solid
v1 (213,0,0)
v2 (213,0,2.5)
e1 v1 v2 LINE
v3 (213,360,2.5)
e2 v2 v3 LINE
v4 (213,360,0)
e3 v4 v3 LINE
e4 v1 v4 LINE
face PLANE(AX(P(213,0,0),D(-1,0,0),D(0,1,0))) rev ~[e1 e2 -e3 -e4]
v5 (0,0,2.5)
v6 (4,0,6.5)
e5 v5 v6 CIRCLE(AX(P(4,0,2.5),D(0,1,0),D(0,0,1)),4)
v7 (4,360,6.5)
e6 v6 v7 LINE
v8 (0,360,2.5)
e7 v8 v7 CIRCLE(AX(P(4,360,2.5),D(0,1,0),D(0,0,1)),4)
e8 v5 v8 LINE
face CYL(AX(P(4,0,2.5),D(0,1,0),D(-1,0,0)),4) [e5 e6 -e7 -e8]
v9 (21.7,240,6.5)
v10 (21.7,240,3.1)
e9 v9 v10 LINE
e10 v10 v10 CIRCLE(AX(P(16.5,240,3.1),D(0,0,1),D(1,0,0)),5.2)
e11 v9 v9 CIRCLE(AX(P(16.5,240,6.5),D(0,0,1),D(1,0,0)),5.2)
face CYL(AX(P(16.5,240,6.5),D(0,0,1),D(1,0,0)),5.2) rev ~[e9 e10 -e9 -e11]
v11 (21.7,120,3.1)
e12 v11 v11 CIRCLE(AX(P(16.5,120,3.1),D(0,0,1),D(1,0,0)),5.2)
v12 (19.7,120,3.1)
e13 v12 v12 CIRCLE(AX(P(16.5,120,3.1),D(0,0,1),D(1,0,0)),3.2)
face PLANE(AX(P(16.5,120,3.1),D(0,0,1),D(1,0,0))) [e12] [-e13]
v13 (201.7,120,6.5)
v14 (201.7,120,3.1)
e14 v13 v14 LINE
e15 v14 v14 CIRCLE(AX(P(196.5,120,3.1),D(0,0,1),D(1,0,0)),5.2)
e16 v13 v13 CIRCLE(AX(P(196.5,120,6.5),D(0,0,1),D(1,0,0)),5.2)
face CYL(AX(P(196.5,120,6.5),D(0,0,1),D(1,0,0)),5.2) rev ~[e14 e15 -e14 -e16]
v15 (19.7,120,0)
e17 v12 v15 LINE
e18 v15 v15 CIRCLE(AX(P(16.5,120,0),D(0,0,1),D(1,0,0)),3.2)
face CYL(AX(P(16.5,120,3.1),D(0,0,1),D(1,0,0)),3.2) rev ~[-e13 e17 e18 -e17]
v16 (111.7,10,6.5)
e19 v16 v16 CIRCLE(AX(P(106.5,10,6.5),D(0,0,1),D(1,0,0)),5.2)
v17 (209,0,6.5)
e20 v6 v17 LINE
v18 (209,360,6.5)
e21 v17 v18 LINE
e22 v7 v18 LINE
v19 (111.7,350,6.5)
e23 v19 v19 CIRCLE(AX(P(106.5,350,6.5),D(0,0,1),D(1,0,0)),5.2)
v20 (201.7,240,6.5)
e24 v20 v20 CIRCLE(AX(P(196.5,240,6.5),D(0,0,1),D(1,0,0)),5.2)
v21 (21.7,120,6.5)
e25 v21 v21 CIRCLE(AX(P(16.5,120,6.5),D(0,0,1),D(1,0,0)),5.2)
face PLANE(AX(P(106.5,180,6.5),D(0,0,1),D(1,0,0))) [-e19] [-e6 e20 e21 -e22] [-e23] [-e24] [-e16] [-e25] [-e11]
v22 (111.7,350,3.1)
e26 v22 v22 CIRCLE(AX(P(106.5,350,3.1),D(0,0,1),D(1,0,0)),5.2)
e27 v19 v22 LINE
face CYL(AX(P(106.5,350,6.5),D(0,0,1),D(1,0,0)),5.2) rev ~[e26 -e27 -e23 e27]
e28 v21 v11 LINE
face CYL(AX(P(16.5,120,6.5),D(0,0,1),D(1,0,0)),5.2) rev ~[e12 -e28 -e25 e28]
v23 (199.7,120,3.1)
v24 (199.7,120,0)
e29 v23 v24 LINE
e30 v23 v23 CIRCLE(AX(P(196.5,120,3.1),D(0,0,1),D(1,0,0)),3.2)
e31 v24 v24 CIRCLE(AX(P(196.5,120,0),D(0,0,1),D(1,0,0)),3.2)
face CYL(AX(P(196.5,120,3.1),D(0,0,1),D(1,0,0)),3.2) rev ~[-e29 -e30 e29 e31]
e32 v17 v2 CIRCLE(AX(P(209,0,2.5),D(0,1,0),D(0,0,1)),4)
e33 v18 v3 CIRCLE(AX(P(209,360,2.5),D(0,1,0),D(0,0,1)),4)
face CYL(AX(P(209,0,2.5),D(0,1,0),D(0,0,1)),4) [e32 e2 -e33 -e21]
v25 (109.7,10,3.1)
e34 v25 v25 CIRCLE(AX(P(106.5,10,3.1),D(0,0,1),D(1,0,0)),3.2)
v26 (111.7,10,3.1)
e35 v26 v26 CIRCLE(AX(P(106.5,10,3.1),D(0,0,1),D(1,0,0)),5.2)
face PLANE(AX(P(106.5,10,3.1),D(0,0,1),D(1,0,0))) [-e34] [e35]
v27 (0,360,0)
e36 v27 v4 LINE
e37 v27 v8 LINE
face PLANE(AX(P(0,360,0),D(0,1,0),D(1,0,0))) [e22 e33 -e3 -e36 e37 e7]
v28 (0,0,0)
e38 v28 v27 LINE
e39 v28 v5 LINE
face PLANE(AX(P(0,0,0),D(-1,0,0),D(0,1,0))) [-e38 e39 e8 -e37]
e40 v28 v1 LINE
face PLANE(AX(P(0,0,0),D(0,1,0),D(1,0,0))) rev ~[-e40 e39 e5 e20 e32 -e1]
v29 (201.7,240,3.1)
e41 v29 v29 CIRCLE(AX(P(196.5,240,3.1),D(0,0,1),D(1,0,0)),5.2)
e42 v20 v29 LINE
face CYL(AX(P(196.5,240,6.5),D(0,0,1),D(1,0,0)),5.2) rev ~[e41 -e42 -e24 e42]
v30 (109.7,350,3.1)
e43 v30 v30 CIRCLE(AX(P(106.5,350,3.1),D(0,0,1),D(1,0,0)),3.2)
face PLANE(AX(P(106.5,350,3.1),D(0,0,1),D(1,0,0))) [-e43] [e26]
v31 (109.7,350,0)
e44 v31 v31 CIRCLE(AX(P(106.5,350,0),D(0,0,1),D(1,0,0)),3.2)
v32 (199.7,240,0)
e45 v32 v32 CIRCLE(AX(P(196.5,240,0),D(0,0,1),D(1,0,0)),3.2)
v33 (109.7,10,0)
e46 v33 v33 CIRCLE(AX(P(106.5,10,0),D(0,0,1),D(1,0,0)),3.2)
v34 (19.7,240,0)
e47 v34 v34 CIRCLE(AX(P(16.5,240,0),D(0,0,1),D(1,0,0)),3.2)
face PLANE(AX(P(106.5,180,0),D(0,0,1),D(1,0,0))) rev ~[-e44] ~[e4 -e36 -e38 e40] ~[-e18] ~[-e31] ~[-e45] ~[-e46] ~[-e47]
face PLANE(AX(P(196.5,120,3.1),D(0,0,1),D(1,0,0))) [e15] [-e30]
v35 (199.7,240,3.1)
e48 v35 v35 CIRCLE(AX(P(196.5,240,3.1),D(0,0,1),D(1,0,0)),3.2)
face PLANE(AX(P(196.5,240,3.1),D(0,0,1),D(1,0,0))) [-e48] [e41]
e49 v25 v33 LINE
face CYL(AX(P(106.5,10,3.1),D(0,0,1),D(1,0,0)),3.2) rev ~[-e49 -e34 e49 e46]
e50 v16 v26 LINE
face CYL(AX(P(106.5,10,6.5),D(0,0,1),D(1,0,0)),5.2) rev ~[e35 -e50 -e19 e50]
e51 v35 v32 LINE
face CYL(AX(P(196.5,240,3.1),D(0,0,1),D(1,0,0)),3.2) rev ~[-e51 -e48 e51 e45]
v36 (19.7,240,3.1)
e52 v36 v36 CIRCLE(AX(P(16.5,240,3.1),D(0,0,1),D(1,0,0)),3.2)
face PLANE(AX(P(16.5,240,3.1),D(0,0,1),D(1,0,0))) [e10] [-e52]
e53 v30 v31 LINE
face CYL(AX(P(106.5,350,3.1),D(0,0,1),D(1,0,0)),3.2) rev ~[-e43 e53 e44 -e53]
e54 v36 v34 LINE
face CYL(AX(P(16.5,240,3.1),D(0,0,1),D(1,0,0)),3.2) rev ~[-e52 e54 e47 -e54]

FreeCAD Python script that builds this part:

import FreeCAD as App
import Part
import Sketcher
Q = App.Units.Quantity


def edges_at(feature, points):
    """Names of the edges that pass closest to the given points."""
    edges = feature.Shape.Edges
    near = lambda p: min(range(len(edges)), key=lambda i: edges[i].distToShape(Part.Vertex(*p))[0])
    return sorted({f"Edge{near(p) + 1}" for p in points})


def add_polygon(sketch, points):
    """Adds a closed chain of lines whose ends are joined by coincident constraints."""
    first, n = sketch.GeometryCount, len(points)
    for a, b in zip(points, points[1:] + points[:1]):
        sketch.addGeometry(Part.LineSegment(App.Vector(*a, 0), App.Vector(*b, 0)), False)
    for i in range(n):
        sketch.addConstraint(Sketcher.Constraint("Coincident", first + i, 2, first + (i + 1) % n, 1))

doc = App.newDocument("Part")
body = doc.addObject("PartDesign::Body", "Body")

sketch1 = body.newObject("Sketcher::SketchObject", "Sketch")
sketch1.AttachmentSupport = (doc.getObject("XY_Plane"), [""])
sketch1.MapMode = "FlatFace"
add_polygon(sketch1, [(0, 360), (0, 0), (213, 0), (213, 360)])
sketch1.addConstraint(Sketcher.Constraint("Vertical", 0))
sketch1.addConstraint(Sketcher.Constraint("Horizontal", 1))
sketch1.addConstraint(Sketcher.Constraint("Vertical", 2))
sketch1.addConstraint(Sketcher.Constraint("Horizontal", 3))
sketch1.addConstraint(Sketcher.Constraint("Coincident", 0, 2, -1, 1))
sketch1.addConstraint(Sketcher.Constraint("DistanceX", 1, 1, 1, 2, Q("213 mm")))
sketch1.addConstraint(Sketcher.Constraint("DistanceY", 0, 2, 0, 1, Q("360 mm")))
pad1 = body.newObject("PartDesign::Pad", "Pad")
pad1.Profile = sketch1
pad1.Length = 6.5

sketch2 = body.newObject("Sketcher::SketchObject", "Sketch001")
sketch2.AttachmentSupport = (doc.getObject("XY_Plane"), [""])
sketch2.MapMode = "FlatFace"
sketch2.AttachmentOffset = App.Placement(App.Vector(0, 0, 6.5), App.Rotation())
sketch2.addGeometry(Part.Circle(App.Vector(106, 350, 0), App.Vector(0, 0, 1), 5), False)
sketch2.addGeometry(Part.Circle(App.Vector(16, 240, 0), App.Vector(0, 0, 1), 5), False)
sketch2.addGeometry(Part.Circle(App.Vector(16, 120, 0), App.Vector(0, 0, 1), 5), False)
sketch2.addGeometry(Part.Circle(App.Vector(196, 240, 0), App.Vector(0, 0, 1), 5), False)
sketch2.addGeometry(Part.Circle(App.Vector(196, 120, 0), App.Vector(0, 0, 1), 5), False)
sketch2.addGeometry(Part.Circle(App.Vector(106, 10, 0), App.Vector(0, 0, 1), 5), False)
sketch2.addConstraint(Sketcher.Constraint("Equal", 0, 1))
sketch2.addConstraint(Sketcher.Constraint("Equal", 1, 2))
sketch2.addConstraint(Sketcher.Constraint("Equal", 2, 3))
sketch2.addConstraint(Sketcher.Constraint("Equal", 3, 4))
sketch2.addConstraint(Sketcher.Constraint("Equal", 4, 5))
sketch2.addConstraint(Sketcher.Constraint("Horizontal", 1, 3, 3, 3))
sketch2.addConstraint(Sketcher.Constraint("Horizontal", 2, 3, 4, 3))
sketch2.addConstraint(Sketcher.Constraint("Vertical", 1, 3, 2, 3))
sketch2.addConstraint(Sketcher.Constraint("Vertical", 3, 3, 4, 3))
sketch2.addConstraint(Sketcher.Constraint("Vertical", 0, 3, 5, 3))
sketch2.addConstraint(Sketcher.Constraint("Diameter", 0, Q("10.4 mm")))
sketch2.addConstraint(Sketcher.Constraint("DistanceY", -1, 1, 0, 3, Q("350 mm")))
sketch2.addConstraint(Sketcher.Constraint("DistanceY", -1, 1, 1, 3, Q("240 mm")))
sketch2.addConstraint(Sketcher.Constraint("DistanceY", -1, 1, 2, 3, Q("120 mm")))
sketch2.addConstraint(Sketcher.Constraint("DistanceY", -1, 1, 5, 3, Q("10 mm")))
sketch2.addConstraint(Sketcher.Constraint("DistanceX", 1, 3, 0, 3, Q("90 mm")))
sketch2.addConstraint(Sketcher.Constraint("DistanceX", 0, 3, 3, 3, Q("90 mm")))
sketch2.addConstraint(Sketcher.Constraint("DistanceX", -1, 1, 0, 3, Q("106.5 mm")))
pocket1 = body.newObject("PartDesign::Pocket", "Pocket")
pocket1.Profile = sketch2
pocket1.Length = 3.4

sketch3 = body.newObject("Sketcher::SketchObject", "Sketch002")
sketch3.AttachmentSupport = (doc.getObject("XY_Plane"), [""])
sketch3.MapMode = "FlatFace"
sketch3.AttachmentOffset = App.Placement(App.Vector(0, 0, 3.1), App.Rotation())
sketch3.addGeometry(Part.Circle(App.Vector(106.5, 350, 0), App.Vector(0, 0, 1), 3.2), False)
sketch3.addGeometry(Part.Circle(App.Vector(16.5, 240, 0), App.Vector(0, 0, 1), 3.2), False)
sketch3.addGeometry(Part.Circle(App.Vector(16.5, 120, 0), App.Vector(0, 0, 1), 3.2), False)
sketch3.addGeometry(Part.Circle(App.Vector(196.5, 240, 0), App.Vector(0, 0, 1), 3.2), False)
sketch3.addGeometry(Part.Circle(App.Vector(196.5, 120, 0), App.Vector(0, 0, 1), 3.2), False)
sketch3.addGeometry(Part.Circle(App.Vector(106.5, 10, 0), App.Vector(0, 0, 1), 3.2), False)
sketch3.addConstraint(Sketcher.Constraint("Equal", 0, 1))
sketch3.addConstraint(Sketcher.Constraint("Equal", 1, 2))
sketch3.addConstraint(Sketcher.Constraint("Equal", 2, 3))
sketch3.addConstraint(Sketcher.Constraint("Equal", 3, 4))
sketch3.addConstraint(Sketcher.Constraint("Equal", 4, 5))
sketch3.addConstraint(Sketcher.Constraint("Horizontal", 1, 3, 3, 3))
sketch3.addConstraint(Sketcher.Constraint("Horizontal", 2, 3, 4, 3))
sketch3.addConstraint(Sketcher.Constraint("Vertical", 1, 3, 2, 3))
sketch3.addConstraint(Sketcher.Constraint("Vertical", 3, 3, 4, 3))
sketch3.addConstraint(Sketcher.Constraint("Vertical", 0, 3, 5, 3))
sketch3.addConstraint(Sketcher.Constraint("Diameter", 0, Q("6.4 mm")))
sketch3.addConstraint(Sketcher.Constraint("DistanceY", -1, 1, 0, 3, Q("350 mm")))
sketch3.addConstraint(Sketcher.Constraint("DistanceY", -1, 1, 1, 3, Q("240 mm")))
sketch3.addConstraint(Sketcher.Constraint("DistanceY", -1, 1, 2, 3, Q("120 mm")))
sketch3.addConstraint(Sketcher.Constraint("DistanceY", -1, 1, 5, 3, Q("10 mm")))
sketch3.addConstraint(Sketcher.Constraint("DistanceX", 1, 3, 0, 3, Q("90 mm")))
sketch3.addConstraint(Sketcher.Constraint("DistanceX", 0, 3, 3, 3, Q("90 mm")))
sketch3.addConstraint(Sketcher.Constraint("DistanceX", -1, 1, 0, 3, Q("106.5 mm")))
pocket2 = body.newObject("PartDesign::Pocket", "Pocket001")
pocket2.Profile = sketch3
pocket2.Length = 3.1
doc.recompute()

fillet = body.newObject("PartDesign::Fillet", "Fillet")
fillet.Base = (pocket2, edges_at(pocket2, [(213, 180, 6.5), (0, 180, 6.5)]))
fillet.Radius = 4

doc.recompute()
